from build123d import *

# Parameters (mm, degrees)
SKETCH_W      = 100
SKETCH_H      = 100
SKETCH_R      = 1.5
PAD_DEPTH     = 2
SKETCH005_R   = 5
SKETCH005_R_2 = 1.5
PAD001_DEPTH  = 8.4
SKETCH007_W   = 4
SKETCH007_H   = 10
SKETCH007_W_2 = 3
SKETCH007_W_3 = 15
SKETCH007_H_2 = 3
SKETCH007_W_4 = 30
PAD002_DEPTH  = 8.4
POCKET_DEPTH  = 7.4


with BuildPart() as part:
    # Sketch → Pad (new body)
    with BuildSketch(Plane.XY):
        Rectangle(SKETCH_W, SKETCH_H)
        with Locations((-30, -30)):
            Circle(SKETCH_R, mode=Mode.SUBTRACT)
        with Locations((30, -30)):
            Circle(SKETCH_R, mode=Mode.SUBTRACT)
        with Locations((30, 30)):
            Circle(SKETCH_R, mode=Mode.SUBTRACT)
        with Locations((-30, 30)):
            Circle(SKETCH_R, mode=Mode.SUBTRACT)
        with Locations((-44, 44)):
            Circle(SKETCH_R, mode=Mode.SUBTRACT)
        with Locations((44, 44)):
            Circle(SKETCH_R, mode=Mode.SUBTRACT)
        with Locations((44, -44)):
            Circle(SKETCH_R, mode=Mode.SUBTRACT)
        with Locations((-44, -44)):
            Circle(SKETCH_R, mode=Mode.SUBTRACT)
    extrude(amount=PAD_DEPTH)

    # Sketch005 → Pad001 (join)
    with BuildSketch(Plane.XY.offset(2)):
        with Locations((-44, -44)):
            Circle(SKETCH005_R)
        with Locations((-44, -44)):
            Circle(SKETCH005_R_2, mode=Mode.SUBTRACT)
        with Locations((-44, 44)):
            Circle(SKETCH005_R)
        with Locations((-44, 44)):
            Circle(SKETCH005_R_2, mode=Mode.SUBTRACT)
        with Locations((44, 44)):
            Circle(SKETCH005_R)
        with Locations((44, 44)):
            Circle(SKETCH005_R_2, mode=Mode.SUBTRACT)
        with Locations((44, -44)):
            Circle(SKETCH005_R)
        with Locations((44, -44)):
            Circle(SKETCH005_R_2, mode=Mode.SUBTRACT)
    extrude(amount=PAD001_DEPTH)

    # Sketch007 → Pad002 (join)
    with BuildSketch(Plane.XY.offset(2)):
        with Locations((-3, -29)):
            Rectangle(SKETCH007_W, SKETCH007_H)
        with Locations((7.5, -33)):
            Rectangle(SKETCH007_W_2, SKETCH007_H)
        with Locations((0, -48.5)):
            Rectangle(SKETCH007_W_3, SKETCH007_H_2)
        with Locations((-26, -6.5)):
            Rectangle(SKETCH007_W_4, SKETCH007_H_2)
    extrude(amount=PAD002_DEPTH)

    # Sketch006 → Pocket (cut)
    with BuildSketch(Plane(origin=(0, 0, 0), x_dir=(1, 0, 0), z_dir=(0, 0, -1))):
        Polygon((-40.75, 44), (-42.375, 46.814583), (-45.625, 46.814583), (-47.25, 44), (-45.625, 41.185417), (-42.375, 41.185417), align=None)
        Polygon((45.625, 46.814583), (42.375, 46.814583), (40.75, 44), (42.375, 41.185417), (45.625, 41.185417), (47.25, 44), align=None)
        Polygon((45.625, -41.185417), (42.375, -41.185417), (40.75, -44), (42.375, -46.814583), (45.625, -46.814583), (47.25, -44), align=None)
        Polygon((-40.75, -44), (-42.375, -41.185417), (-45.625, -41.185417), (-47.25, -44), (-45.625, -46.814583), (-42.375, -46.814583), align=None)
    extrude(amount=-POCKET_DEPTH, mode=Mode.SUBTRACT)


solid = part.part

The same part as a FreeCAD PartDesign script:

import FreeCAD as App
import Part
import Sketcher

V = App.Vector
Q = App.Units.Quantity

doc = App.newDocument("Part")
body = doc.addObject("PartDesign::Body", "Body")

sketch1 = body.newObject("Sketcher::SketchObject", "Sketch")
sketch1.AttachmentSupport = (doc.getObject("XY_Plane"), [""])
sketch1.MapMode = "FlatFace"
sketch1.addGeometry(Part.LineSegment(V(-50, 50, 0), V(-50, -50, 0)), False)
sketch1.addGeometry(Part.LineSegment(V(-50, -50, 0), V(50, -50, 0)), False)
sketch1.addGeometry(Part.LineSegment(V(50, -50, 0), V(50, 50, 0)), False)
sketch1.addGeometry(Part.LineSegment(V(50, 50, 0), V(-50, 50, 0)), False)
sketch1.addGeometry(Part.Circle(V(-44, -44, 0), V(0, 0, 1), 1.5), False)
sketch1.addGeometry(Part.Circle(V(-30, -30, 0), V(0, 0, 1), 1.5), False)
sketch1.addGeometry(Part.Circle(V(44, -44, 0), V(0, 0, 1), 1.5), False)
sketch1.addGeometry(Part.Circle(V(30, -30, 0), V(0, 0, 1), 1.5), False)
sketch1.addGeometry(Part.Circle(V(-30, 30, 0), V(0, 0, 1), 1.5), False)
sketch1.addGeometry(Part.Circle(V(-44, 44, 0), V(0, 0, 1), 1.5), False)
sketch1.addGeometry(Part.Circle(V(30, 30, 0), V(0, 0, 1), 1.5), False)
sketch1.addGeometry(Part.Circle(V(44, 44, 0), V(0, 0, 1), 1.5), False)
sketch1.addConstraint(Sketcher.Constraint("Coincident", 0, 2, 1, 1))
sketch1.addConstraint(Sketcher.Constraint("Coincident", 1, 2, 2, 1))
sketch1.addConstraint(Sketcher.Constraint("Coincident", 2, 2, 3, 1))
sketch1.addConstraint(Sketcher.Constraint("Coincident", 3, 2, 0, 1))
sketch1.addConstraint(Sketcher.Constraint("Vertical", 0))
sketch1.addConstraint(Sketcher.Constraint("Horizontal", 1))
sketch1.addConstraint(Sketcher.Constraint("Vertical", 2))
sketch1.addConstraint(Sketcher.Constraint("Horizontal", 3))
sketch1.addConstraint(Sketcher.Constraint("Equal", 4, 5))
sketch1.addConstraint(Sketcher.Constraint("Equal", 5, 6))
sketch1.addConstraint(Sketcher.Constraint("Equal", 6, 7))
sketch1.addConstraint(Sketcher.Constraint("Equal", 7, 8))
sketch1.addConstraint(Sketcher.Constraint("Equal", 8, 9))
sketch1.addConstraint(Sketcher.Constraint("Equal", 9, 10))
sketch1.addConstraint(Sketcher.Constraint("Equal", 10, 11))
sketch1.addConstraint(Sketcher.Constraint("Symmetric", 7, 3, 8, 3, -1, 1))
sketch1.addConstraint(Sketcher.Constraint("Symmetric", 6, 3, 9, 3, -1, 1))
sketch1.addConstraint(Sketcher.Constraint("Symmetric", 5, 3, 10, 3, -1, 1))
sketch1.addConstraint(Sketcher.Constraint("Symmetric", 4, 3, 11, 3, -1, 1))
sketch1.addConstraint(Sketcher.Constraint("Symmetric", 0, 2, 2, 2, -1, 1))
sketch1.addConstraint(Sketcher.Constraint("Symmetric", 4, 3, 6, 3, -2))
sketch1.addConstraint(Sketcher.Constraint("Symmetric", 5, 3, 7, 3, -2))
sketch1.addConstraint(Sketcher.Constraint("Equal", 3, 0))
sketch1.addConstraint(Sketcher.Constraint("Diameter", 4, Q("3 mm")))
sketch1.addConstraint(Sketcher.Constraint("DistanceX", 1, 1, 1, 2, Q("100 mm")))
sketch1.addConstraint(Sketcher.Constraint("DistanceX", 4, 3, -1, 1, Q("44 mm")))
sketch1.addConstraint(Sketcher.Constraint("DistanceY", 4, 3, -1, 1, Q("44 mm")))
sketch1.addConstraint(Sketcher.Constraint("DistanceX", 5, 3, -1, 1, Q("30 mm")))
sketch1.addConstraint(Sketcher.Constraint("DistanceY", 5, 3, -1, 1, Q("30 mm")))
pad1 = body.newObject("PartDesign::Pad", "Pad")
pad1.Profile = sketch1
pad1.Length = 2

sketch2 = body.newObject("Sketcher::SketchObject", "Sketch001")
sketch2.AttachmentSupport = (doc.getObject("XY_Plane"), [""])
sketch2.MapMode = "FlatFace"
sketch2.AttachmentOffset = App.Placement(V(0, 0, 2), App.Rotation())
sketch2.addGeometry(Part.Circle(V(-44, -44, 0), V(0, 0, 1), 5), False)
sketch2.addGeometry(Part.Circle(V(-44, -44, 0), V(0, 0, 1), 1.5), False)
sketch2.addGeometry(Part.Circle(V(-44, 44, 0), V(0, 0, 1), 5), False)
sketch2.addGeometry(Part.Circle(V(-44, 44, 0), V(0, 0, 1), 1.5), False)
sketch2.addGeometry(Part.Circle(V(44, 44, 0), V(0, 0, 1), 5), False)
sketch2.addGeometry(Part.Circle(V(44, 44, 0), V(0, 0, 1), 1.5), False)
sketch2.addGeometry(Part.Circle(V(44, -44, 0), V(0, 0, 1), 5), False)
sketch2.addGeometry(Part.Circle(V(44, -44, 0), V(0, 0, 1), 1.5), False)
sketch2.addConstraint(Sketcher.Constraint("Coincident", 1, 3, 0, 3))
sketch2.addConstraint(Sketcher.Constraint("Coincident", 3, 3, 2, 3))
sketch2.addConstraint(Sketcher.Constraint("Coincident", 5, 3, 4, 3))
sketch2.addConstraint(Sketcher.Constraint("Coincident", 7, 3, 6, 3))
sketch2.addConstraint(Sketcher.Constraint("Equal", 0, 2))
sketch2.addConstraint(Sketcher.Constraint("Equal", 1, 3))
sketch2.addConstraint(Sketcher.Constraint("Equal", 2, 4))
sketch2.addConstraint(Sketcher.Constraint("Equal", 3, 5))
sketch2.addConstraint(Sketcher.Constraint("Equal", 4, 6))
sketch2.addConstraint(Sketcher.Constraint("Equal", 5, 7))
sketch2.addConstraint(Sketcher.Constraint("Symmetric", 0, 3, 4, 3, -1, 1))
sketch2.addConstraint(Sketcher.Constraint("Symmetric", 2, 3, 6, 3, -1, 1))
sketch2.addConstraint(Sketcher.Constraint("Symmetric", 2, 3, 4, 3, -2))
sketch2.addConstraint(Sketcher.Constraint("Diameter", 0, Q("10 mm")))
sketch2.addConstraint(Sketcher.Constraint("Diameter", 1, Q("3 mm")))
sketch2.addConstraint(Sketcher.Constraint("DistanceX", 0, 3, -1, 1, Q("44 mm")))
sketch2.addConstraint(Sketcher.Constraint("DistanceY", 0, 3, -1, 1, Q("44 mm")))
pad2 = body.newObject("PartDesign::Pad", "Pad001")
pad2.Profile = sketch2
pad2.Length = 8.4

sketch3 = body.newObject("Sketcher::SketchObject", "Sketch002")
sketch3.AttachmentSupport = (doc.getObject("XY_Plane"), [""])
sketch3.MapMode = "FlatFace"
sketch3.AttachmentOffset = App.Placement(V(0, 0, 2), App.Rotation())
sketch3.addGeometry(Part.LineSegment(V(-5, -24, 0), V(-5, -34, 0)), False)
sketch3.addGeometry(Part.LineSegment(V(-5, -34, 0), V(-1, -34, 0)), False)
sketch3.addGeometry(Part.LineSegment(V(-1, -34, 0), V(-1, -24, 0)), False)
sketch3.addGeometry(Part.LineSegment(V(-1, -24, 0), V(-5, -24, 0)), False)
sketch3.addGeometry(Part.LineSegment(V(6, -28, 0), V(6, -38, 0)), False)
sketch3.addGeometry(Part.LineSegment(V(6, -38, 0), V(9, -38, 0)), False)
sketch3.addGeometry(Part.LineSegment(V(9, -38, 0), V(9, -28, 0)), False)
sketch3.addGeometry(Part.LineSegment(V(9, -28, 0), V(6, -28, 0)), False)
sketch3.addGeometry(Part.LineSegment(V(-7.5, -47, 0), V(-7.5, -50, 0)), False)
sketch3.addGeometry(Part.LineSegment(V(-7.5, -50, 0), V(7.5, -50, 0)), False)
sketch3.addGeometry(Part.LineSegment(V(7.5, -50, 0), V(7.5, -47, 0)), False)
sketch3.addGeometry(Part.LineSegment(V(7.5, -47, 0), V(-7.5, -47, 0)), False)
sketch3.addGeometry(Part.LineSegment(V(-41, -5, 0), V(-41, -8, 0)), False)
sketch3.addGeometry(Part.LineSegment(V(-41, -8, 0), V(-11, -8, 0)), False)
sketch3.addGeometry(Part.LineSegment(V(-11, -8, 0), V(-11, -5, 0)), False)
sketch3.addGeometry(Part.LineSegment(V(-11, -5, 0), V(-41, -5, 0)), False)
sketch3.addConstraint(Sketcher.Constraint("Coincident", 0, 2, 1, 1))
sketch3.addConstraint(Sketcher.Constraint("Coincident", 1, 2, 2, 1))
sketch3.addConstraint(Sketcher.Constraint("Coincident", 2, 2, 3, 1))
sketch3.addConstraint(Sketcher.Constraint("Coincident", 3, 2, 0, 1))
sketch3.addConstraint(Sketcher.Constraint("Coincident", 4, 2, 5, 1))
sketch3.addConstraint(Sketcher.Constraint("Coincident", 5, 2, 6, 1))
sketch3.addConstraint(Sketcher.Constraint("Coincident", 6, 2, 7, 1))
sketch3.addConstraint(Sketcher.Constraint("Coincident", 7, 2, 4, 1))
sketch3.addConstraint(Sketcher.Constraint("Coincident", 8, 2, 9, 1))
sketch3.addConstraint(Sketcher.Constraint("Coincident", 9, 2, 10, 1))
sketch3.addConstraint(Sketcher.Constraint("Coincident", 10, 2, 11, 1))
sketch3.addConstraint(Sketcher.Constraint("Coincident", 11, 2, 8, 1))
sketch3.addConstraint(Sketcher.Constraint("Coincident", 12, 2, 13, 1))
sketch3.addConstraint(Sketcher.Constraint("Coincident", 13, 2, 14, 1))
sketch3.addConstraint(Sketcher.Constraint("Coincident", 14, 2, 15, 1))
sketch3.addConstraint(Sketcher.Constraint("Coincident", 15, 2, 12, 1))
sketch3.addConstraint(Sketcher.Constraint("Vertical", 0))
sketch3.addConstraint(Sketcher.Constraint("Horizontal", 1))
sketch3.addConstraint(Sketcher.Constraint("Vertical", 2))
sketch3.addConstraint(Sketcher.Constraint("Horizontal", 3))
sketch3.addConstraint(Sketcher.Constraint("Vertical", 4))
sketch3.addConstraint(Sketcher.Constraint("Horizontal", 5))
sketch3.addConstraint(Sketcher.Constraint("Vertical", 6))
sketch3.addConstraint(Sketcher.Constraint("Horizontal", 7))
sketch3.addConstraint(Sketcher.Constraint("Vertical", 8))
sketch3.addConstraint(Sketcher.Constraint("Horizontal", 9))
sketch3.addConstraint(Sketcher.Constraint("Vertical", 10))
sketch3.addConstraint(Sketcher.Constraint("Horizontal", 11))
sketch3.addConstraint(Sketcher.Constraint("Vertical", 12))
sketch3.addConstraint(Sketcher.Constraint("Horizontal", 13))
sketch3.addConstraint(Sketcher.Constraint("Vertical", 14))
sketch3.addConstraint(Sketcher.Constraint("Horizontal", 15))
sketch3.addConstraint(Sketcher.Constraint("Equal", 2, 4))
sketch3.addConstraint(Sketcher.Constraint("Equal", 7, 8))
sketch3.addConstraint(Sketcher.Constraint("Equal", 10, 12))
sketch3.addConstraint(Sketcher.Constraint("DistanceX", 1, 1, 1, 2, Q("4 mm")))
sketch3.addConstraint(Sketcher.Constraint("DistanceX", 5, 1, 5, 2, Q("3 mm")))
sketch3.addConstraint(Sketcher.Constraint("DistanceX", 9, 1, 9, 2, Q("15 mm")))
sketch3.addConstraint(Sketcher.Constraint("DistanceX", 13, 1, 13, 2, Q("30 mm")))
sketch3.addConstraint(Sketcher.Constraint("DistanceY", 0, 2, 0, 1, Q("10 mm")))
sketch3.addConstraint(Sketcher.Constraint("DistanceX", 0, 2, -1, 1, Q("5 mm")))
sketch3.addConstraint(Sketcher.Constraint("DistanceY", 0, 2, -1, 1, Q("34 mm")))
sketch3.addConstraint(Sketcher.Constraint("DistanceX", -1, 1, 4, 2, Q("6 mm")))
sketch3.addConstraint(Sketcher.Constraint("DistanceY", 4, 2, -1, 1, Q("38 mm")))
sketch3.addConstraint(Sketcher.Constraint("DistanceY", 8, 2, -1, 1, Q("50 mm")))
sketch3.addConstraint(Sketcher.Constraint("DistanceX", 12, 2, -1, 1, Q("41 mm")))
sketch3.addConstraint(Sketcher.Constraint("DistanceY", 12, 2, -1, 1, Q("8 mm")))
sketch3.addConstraint(Sketcher.Constraint("DistanceX", 8, 2, -1, 1, Q("7.5 mm")))
pad3 = body.newObject("PartDesign::Pad", "Pad002")
pad3.Profile = sketch3
pad3.Length = 8.4

sketch4 = body.newObject("Sketcher::SketchObject", "Sketch003")
sketch4.AttachmentSupport = (doc.getObject("XY_Plane"), [""])
sketch4.MapMode = "FlatFace"
sketch4.addGeometry(Part.LineSegment(V(-40.75, -44, 0), V(-42.375, -46.814583, 0)), False)
sketch4.addGeometry(Part.LineSegment(V(-42.375, -46.814583, 0), V(-45.625, -46.814583, 0)), False)
sketch4.addGeometry(Part.LineSegment(V(-45.625, -46.814583, 0), V(-47.25, -44, 0)), False)
sketch4.addGeometry(Part.LineSegment(V(-47.25, -44, 0), V(-45.625, -41.185417, 0)), False)
sketch4.addGeometry(Part.LineSegment(V(-45.625, -41.185417, 0), V(-42.375, -41.185417, 0)), False)
sketch4.addGeometry(Part.LineSegment(V(-42.375, -41.185417, 0), V(-40.75, -44, 0)), False)
sketch4.addGeometry(Part.LineSegment(V(45.625, -46.814583, 0), V(42.375, -46.814583, 0)), False)
sketch4.addGeometry(Part.LineSegment(V(42.375, -46.814583, 0), V(40.75, -44, 0)), False)
sketch4.addGeometry(Part.LineSegment(V(40.75, -44, 0), V(42.375, -41.185417, 0)), False)
sketch4.addGeometry(Part.LineSegment(V(42.375, -41.185417, 0), V(45.625, -41.185417, 0)), False)
sketch4.addGeometry(Part.LineSegment(V(45.625, -41.185417, 0), V(47.25, -44, 0)), False)
sketch4.addGeometry(Part.LineSegment(V(47.25, -44, 0), V(45.625, -46.814583, 0)), False)
sketch4.addGeometry(Part.LineSegment(V(45.625, 41.185417, 0), V(42.375, 41.185417, 0)), False)
sketch4.addGeometry(Part.LineSegment(V(42.375, 41.185417, 0), V(40.75, 44, 0)), False)
sketch4.addGeometry(Part.LineSegment(V(40.75, 44, 0), V(42.375, 46.814583, 0)), False)
sketch4.addGeometry(Part.LineSegment(V(42.375, 46.814583, 0), V(45.625, 46.814583, 0)), False)
sketch4.addGeometry(Part.LineSegment(V(45.625, 46.814583, 0), V(47.25, 44, 0)), False)
sketch4.addGeometry(Part.LineSegment(V(47.25, 44, 0), V(45.625, 41.185417, 0)), False)
sketch4.addGeometry(Part.LineSegment(V(-40.75, 44, 0), V(-42.375, 41.185417, 0)), False)
sketch4.addGeometry(Part.LineSegment(V(-42.375, 41.185417, 0), V(-45.625, 41.185417, 0)), False)
sketch4.addGeometry(Part.LineSegment(V(-45.625, 41.185417, 0), V(-47.25, 44, 0)), False)
sketch4.addGeometry(Part.LineSegment(V(-47.25, 44, 0), V(-45.625, 46.814583, 0)), False)
sketch4.addGeometry(Part.LineSegment(V(-45.625, 46.814583, 0), V(-42.375, 46.814583, 0)), False)
sketch4.addGeometry(Part.LineSegment(V(-42.375, 46.814583, 0), V(-40.75, 44, 0)), False)
sketch4.addConstraint(Sketcher.Constraint("Coincident", 0, 2, 1, 1))
sketch4.addConstraint(Sketcher.Constraint("Coincident", 1, 2, 2, 1))
sketch4.addConstraint(Sketcher.Constraint("Coincident", 2, 2, 3, 1))
sketch4.addConstraint(Sketcher.Constraint("Coincident", 3, 2, 4, 1))
sketch4.addConstraint(Sketcher.Constraint("Coincident", 4, 2, 5, 1))
sketch4.addConstraint(Sketcher.Constraint("Coincident", 5, 2, 0, 1))
sketch4.addConstraint(Sketcher.Constraint("Coincident", 6, 2, 7, 1))
sketch4.addConstraint(Sketcher.Constraint("Coincident", 7, 2, 8, 1))
sketch4.addConstraint(Sketcher.Constraint("Coincident", 8, 2, 9, 1))
sketch4.addConstraint(Sketcher.Constraint("Coincident", 9, 2, 10, 1))
sketch4.addConstraint(Sketcher.Constraint("Coincident", 10, 2, 11, 1))
sketch4.addConstraint(Sketcher.Constraint("Coincident", 11, 2, 6, 1))
sketch4.addConstraint(Sketcher.Constraint("Coincident", 12, 2, 13, 1))
sketch4.addConstraint(Sketcher.Constraint("Coincident", 13, 2, 14, 1))
sketch4.addConstraint(Sketcher.Constraint("Coincident", 14, 2, 15, 1))
sketch4.addConstraint(Sketcher.Constraint("Coincident", 15, 2, 16, 1))
sketch4.addConstraint(Sketcher.Constraint("Coincident", 16, 2, 17, 1))
sketch4.addConstraint(Sketcher.Constraint("Coincident", 17, 2, 12, 1))
sketch4.addConstraint(Sketcher.Constraint("Coincident", 18, 2, 19, 1))
sketch4.addConstraint(Sketcher.Constraint("Coincident", 19, 2, 20, 1))
sketch4.addConstraint(Sketcher.Constraint("Coincident", 20, 2, 21, 1))
sketch4.addConstraint(Sketcher.Constraint("Coincident", 21, 2, 22, 1))
sketch4.addConstraint(Sketcher.Constraint("Coincident", 22, 2, 23, 1))
sketch4.addConstraint(Sketcher.Constraint("Coincident", 23, 2, 18, 1))
sketch4.addConstraint(Sketcher.Constraint("Horizontal", 1))
sketch4.addConstraint(Sketcher.Constraint("Horizontal", 4))
sketch4.addConstraint(Sketcher.Constraint("Horizontal", 6))
sketch4.addConstraint(Sketcher.Constraint("Horizontal", 9))
sketch4.addConstraint(Sketcher.Constraint("Horizontal", 12))
sketch4.addConstraint(Sketcher.Constraint("Horizontal", 15))
sketch4.addConstraint(Sketcher.Constraint("Horizontal", 19))
sketch4.addConstraint(Sketcher.Constraint("Horizontal", 22))
sketch4.addConstraint(Sketcher.Constraint("Symmetric", 4, 2, 12, 2, -1, 1))
sketch4.addConstraint(Sketcher.Constraint("Symmetric", 5, 2, 13, 2, -1, 1))
sketch4.addConstraint(Sketcher.Constraint("Symmetric", 0, 2, 14, 2, -1, 1))
sketch4.addConstraint(Sketcher.Constraint("Symmetric", 2, 2, 16, 2, -1, 1))
sketch4.addConstraint(Sketcher.Constraint("Symmetric", 8, 2, 18, 2, -1, 1))
sketch4.addConstraint(Sketcher.Constraint("Symmetric", 10, 2, 20, 2, -1, 1))
sketch4.addConstraint(Sketcher.Constraint("Symmetric", 11, 2, 21, 2, -1, 1))
sketch4.addConstraint(Sketcher.Constraint("Symmetric", 7, 2, 23, 2, -1, 1))
sketch4.addConstraint(Sketcher.Constraint("Symmetric", 0, 2, 6, 2, -2))
sketch4.addConstraint(Sketcher.Constraint("Symmetric", 5, 2, 7, 2, -2))
sketch4.addConstraint(Sketcher.Constraint("Symmetric", 4, 2, 8, 2, -2))
sketch4.addConstraint(Sketcher.Constraint("Symmetric", 2, 2, 10, 2, -2))
sketch4.addConstraint(Sketcher.Constraint("Parallel", 0, 3))
sketch4.addConstraint(Sketcher.Constraint("Parallel", 2, 5))
sketch4.addConstraint(Sketcher.Constraint("Parallel", 5, 7))
sketch4.addConstraint(Sketcher.Constraint("Parallel", 7, 10))
sketch4.addConstraint(Sketcher.Constraint("Parallel", 8, 11))
sketch4.addConstraint(Sketcher.Constraint("Parallel", 13, 16))
sketch4.addConstraint(Sketcher.Constraint("Parallel", 14, 17))
sketch4.addConstraint(Sketcher.Constraint("Parallel", 16, 20))
sketch4.addConstraint(Sketcher.Constraint("Parallel", 20, 23))
sketch4.addConstraint(Sketcher.Constraint("Horizontal", 2, 2, 5, 2))
sketch4.addConstraint(Sketcher.Constraint("Vertical", 1, 2, 3, 2))
sketch4.addConstraint(Sketcher.Constraint("Angle", 0, Q("-119.999996 deg")))
sketch4.addConstraint(Sketcher.Constraint("DistanceY", 2, 2, -1, 1, Q("44 mm")))
sketch4.addConstraint(Sketcher.Constraint("DistanceX", 1, 2, 6, 2, Q("88 mm")))
sketch4.addConstraint(Sketcher.Constraint("DistanceX", 1, 2, 1, 1, Q("3.25 mm")))
sketch4.addConstraint(Sketcher.Constraint("DistanceX", 2, 2, 5, 2, Q("6.5 mm")))
pocket1 = body.newObject("PartDesign::Pocket", "Pocket")
pocket1.Profile = sketch4
pocket1.Length = 7.4
pocket1.Reversed = True

doc.recompute()
